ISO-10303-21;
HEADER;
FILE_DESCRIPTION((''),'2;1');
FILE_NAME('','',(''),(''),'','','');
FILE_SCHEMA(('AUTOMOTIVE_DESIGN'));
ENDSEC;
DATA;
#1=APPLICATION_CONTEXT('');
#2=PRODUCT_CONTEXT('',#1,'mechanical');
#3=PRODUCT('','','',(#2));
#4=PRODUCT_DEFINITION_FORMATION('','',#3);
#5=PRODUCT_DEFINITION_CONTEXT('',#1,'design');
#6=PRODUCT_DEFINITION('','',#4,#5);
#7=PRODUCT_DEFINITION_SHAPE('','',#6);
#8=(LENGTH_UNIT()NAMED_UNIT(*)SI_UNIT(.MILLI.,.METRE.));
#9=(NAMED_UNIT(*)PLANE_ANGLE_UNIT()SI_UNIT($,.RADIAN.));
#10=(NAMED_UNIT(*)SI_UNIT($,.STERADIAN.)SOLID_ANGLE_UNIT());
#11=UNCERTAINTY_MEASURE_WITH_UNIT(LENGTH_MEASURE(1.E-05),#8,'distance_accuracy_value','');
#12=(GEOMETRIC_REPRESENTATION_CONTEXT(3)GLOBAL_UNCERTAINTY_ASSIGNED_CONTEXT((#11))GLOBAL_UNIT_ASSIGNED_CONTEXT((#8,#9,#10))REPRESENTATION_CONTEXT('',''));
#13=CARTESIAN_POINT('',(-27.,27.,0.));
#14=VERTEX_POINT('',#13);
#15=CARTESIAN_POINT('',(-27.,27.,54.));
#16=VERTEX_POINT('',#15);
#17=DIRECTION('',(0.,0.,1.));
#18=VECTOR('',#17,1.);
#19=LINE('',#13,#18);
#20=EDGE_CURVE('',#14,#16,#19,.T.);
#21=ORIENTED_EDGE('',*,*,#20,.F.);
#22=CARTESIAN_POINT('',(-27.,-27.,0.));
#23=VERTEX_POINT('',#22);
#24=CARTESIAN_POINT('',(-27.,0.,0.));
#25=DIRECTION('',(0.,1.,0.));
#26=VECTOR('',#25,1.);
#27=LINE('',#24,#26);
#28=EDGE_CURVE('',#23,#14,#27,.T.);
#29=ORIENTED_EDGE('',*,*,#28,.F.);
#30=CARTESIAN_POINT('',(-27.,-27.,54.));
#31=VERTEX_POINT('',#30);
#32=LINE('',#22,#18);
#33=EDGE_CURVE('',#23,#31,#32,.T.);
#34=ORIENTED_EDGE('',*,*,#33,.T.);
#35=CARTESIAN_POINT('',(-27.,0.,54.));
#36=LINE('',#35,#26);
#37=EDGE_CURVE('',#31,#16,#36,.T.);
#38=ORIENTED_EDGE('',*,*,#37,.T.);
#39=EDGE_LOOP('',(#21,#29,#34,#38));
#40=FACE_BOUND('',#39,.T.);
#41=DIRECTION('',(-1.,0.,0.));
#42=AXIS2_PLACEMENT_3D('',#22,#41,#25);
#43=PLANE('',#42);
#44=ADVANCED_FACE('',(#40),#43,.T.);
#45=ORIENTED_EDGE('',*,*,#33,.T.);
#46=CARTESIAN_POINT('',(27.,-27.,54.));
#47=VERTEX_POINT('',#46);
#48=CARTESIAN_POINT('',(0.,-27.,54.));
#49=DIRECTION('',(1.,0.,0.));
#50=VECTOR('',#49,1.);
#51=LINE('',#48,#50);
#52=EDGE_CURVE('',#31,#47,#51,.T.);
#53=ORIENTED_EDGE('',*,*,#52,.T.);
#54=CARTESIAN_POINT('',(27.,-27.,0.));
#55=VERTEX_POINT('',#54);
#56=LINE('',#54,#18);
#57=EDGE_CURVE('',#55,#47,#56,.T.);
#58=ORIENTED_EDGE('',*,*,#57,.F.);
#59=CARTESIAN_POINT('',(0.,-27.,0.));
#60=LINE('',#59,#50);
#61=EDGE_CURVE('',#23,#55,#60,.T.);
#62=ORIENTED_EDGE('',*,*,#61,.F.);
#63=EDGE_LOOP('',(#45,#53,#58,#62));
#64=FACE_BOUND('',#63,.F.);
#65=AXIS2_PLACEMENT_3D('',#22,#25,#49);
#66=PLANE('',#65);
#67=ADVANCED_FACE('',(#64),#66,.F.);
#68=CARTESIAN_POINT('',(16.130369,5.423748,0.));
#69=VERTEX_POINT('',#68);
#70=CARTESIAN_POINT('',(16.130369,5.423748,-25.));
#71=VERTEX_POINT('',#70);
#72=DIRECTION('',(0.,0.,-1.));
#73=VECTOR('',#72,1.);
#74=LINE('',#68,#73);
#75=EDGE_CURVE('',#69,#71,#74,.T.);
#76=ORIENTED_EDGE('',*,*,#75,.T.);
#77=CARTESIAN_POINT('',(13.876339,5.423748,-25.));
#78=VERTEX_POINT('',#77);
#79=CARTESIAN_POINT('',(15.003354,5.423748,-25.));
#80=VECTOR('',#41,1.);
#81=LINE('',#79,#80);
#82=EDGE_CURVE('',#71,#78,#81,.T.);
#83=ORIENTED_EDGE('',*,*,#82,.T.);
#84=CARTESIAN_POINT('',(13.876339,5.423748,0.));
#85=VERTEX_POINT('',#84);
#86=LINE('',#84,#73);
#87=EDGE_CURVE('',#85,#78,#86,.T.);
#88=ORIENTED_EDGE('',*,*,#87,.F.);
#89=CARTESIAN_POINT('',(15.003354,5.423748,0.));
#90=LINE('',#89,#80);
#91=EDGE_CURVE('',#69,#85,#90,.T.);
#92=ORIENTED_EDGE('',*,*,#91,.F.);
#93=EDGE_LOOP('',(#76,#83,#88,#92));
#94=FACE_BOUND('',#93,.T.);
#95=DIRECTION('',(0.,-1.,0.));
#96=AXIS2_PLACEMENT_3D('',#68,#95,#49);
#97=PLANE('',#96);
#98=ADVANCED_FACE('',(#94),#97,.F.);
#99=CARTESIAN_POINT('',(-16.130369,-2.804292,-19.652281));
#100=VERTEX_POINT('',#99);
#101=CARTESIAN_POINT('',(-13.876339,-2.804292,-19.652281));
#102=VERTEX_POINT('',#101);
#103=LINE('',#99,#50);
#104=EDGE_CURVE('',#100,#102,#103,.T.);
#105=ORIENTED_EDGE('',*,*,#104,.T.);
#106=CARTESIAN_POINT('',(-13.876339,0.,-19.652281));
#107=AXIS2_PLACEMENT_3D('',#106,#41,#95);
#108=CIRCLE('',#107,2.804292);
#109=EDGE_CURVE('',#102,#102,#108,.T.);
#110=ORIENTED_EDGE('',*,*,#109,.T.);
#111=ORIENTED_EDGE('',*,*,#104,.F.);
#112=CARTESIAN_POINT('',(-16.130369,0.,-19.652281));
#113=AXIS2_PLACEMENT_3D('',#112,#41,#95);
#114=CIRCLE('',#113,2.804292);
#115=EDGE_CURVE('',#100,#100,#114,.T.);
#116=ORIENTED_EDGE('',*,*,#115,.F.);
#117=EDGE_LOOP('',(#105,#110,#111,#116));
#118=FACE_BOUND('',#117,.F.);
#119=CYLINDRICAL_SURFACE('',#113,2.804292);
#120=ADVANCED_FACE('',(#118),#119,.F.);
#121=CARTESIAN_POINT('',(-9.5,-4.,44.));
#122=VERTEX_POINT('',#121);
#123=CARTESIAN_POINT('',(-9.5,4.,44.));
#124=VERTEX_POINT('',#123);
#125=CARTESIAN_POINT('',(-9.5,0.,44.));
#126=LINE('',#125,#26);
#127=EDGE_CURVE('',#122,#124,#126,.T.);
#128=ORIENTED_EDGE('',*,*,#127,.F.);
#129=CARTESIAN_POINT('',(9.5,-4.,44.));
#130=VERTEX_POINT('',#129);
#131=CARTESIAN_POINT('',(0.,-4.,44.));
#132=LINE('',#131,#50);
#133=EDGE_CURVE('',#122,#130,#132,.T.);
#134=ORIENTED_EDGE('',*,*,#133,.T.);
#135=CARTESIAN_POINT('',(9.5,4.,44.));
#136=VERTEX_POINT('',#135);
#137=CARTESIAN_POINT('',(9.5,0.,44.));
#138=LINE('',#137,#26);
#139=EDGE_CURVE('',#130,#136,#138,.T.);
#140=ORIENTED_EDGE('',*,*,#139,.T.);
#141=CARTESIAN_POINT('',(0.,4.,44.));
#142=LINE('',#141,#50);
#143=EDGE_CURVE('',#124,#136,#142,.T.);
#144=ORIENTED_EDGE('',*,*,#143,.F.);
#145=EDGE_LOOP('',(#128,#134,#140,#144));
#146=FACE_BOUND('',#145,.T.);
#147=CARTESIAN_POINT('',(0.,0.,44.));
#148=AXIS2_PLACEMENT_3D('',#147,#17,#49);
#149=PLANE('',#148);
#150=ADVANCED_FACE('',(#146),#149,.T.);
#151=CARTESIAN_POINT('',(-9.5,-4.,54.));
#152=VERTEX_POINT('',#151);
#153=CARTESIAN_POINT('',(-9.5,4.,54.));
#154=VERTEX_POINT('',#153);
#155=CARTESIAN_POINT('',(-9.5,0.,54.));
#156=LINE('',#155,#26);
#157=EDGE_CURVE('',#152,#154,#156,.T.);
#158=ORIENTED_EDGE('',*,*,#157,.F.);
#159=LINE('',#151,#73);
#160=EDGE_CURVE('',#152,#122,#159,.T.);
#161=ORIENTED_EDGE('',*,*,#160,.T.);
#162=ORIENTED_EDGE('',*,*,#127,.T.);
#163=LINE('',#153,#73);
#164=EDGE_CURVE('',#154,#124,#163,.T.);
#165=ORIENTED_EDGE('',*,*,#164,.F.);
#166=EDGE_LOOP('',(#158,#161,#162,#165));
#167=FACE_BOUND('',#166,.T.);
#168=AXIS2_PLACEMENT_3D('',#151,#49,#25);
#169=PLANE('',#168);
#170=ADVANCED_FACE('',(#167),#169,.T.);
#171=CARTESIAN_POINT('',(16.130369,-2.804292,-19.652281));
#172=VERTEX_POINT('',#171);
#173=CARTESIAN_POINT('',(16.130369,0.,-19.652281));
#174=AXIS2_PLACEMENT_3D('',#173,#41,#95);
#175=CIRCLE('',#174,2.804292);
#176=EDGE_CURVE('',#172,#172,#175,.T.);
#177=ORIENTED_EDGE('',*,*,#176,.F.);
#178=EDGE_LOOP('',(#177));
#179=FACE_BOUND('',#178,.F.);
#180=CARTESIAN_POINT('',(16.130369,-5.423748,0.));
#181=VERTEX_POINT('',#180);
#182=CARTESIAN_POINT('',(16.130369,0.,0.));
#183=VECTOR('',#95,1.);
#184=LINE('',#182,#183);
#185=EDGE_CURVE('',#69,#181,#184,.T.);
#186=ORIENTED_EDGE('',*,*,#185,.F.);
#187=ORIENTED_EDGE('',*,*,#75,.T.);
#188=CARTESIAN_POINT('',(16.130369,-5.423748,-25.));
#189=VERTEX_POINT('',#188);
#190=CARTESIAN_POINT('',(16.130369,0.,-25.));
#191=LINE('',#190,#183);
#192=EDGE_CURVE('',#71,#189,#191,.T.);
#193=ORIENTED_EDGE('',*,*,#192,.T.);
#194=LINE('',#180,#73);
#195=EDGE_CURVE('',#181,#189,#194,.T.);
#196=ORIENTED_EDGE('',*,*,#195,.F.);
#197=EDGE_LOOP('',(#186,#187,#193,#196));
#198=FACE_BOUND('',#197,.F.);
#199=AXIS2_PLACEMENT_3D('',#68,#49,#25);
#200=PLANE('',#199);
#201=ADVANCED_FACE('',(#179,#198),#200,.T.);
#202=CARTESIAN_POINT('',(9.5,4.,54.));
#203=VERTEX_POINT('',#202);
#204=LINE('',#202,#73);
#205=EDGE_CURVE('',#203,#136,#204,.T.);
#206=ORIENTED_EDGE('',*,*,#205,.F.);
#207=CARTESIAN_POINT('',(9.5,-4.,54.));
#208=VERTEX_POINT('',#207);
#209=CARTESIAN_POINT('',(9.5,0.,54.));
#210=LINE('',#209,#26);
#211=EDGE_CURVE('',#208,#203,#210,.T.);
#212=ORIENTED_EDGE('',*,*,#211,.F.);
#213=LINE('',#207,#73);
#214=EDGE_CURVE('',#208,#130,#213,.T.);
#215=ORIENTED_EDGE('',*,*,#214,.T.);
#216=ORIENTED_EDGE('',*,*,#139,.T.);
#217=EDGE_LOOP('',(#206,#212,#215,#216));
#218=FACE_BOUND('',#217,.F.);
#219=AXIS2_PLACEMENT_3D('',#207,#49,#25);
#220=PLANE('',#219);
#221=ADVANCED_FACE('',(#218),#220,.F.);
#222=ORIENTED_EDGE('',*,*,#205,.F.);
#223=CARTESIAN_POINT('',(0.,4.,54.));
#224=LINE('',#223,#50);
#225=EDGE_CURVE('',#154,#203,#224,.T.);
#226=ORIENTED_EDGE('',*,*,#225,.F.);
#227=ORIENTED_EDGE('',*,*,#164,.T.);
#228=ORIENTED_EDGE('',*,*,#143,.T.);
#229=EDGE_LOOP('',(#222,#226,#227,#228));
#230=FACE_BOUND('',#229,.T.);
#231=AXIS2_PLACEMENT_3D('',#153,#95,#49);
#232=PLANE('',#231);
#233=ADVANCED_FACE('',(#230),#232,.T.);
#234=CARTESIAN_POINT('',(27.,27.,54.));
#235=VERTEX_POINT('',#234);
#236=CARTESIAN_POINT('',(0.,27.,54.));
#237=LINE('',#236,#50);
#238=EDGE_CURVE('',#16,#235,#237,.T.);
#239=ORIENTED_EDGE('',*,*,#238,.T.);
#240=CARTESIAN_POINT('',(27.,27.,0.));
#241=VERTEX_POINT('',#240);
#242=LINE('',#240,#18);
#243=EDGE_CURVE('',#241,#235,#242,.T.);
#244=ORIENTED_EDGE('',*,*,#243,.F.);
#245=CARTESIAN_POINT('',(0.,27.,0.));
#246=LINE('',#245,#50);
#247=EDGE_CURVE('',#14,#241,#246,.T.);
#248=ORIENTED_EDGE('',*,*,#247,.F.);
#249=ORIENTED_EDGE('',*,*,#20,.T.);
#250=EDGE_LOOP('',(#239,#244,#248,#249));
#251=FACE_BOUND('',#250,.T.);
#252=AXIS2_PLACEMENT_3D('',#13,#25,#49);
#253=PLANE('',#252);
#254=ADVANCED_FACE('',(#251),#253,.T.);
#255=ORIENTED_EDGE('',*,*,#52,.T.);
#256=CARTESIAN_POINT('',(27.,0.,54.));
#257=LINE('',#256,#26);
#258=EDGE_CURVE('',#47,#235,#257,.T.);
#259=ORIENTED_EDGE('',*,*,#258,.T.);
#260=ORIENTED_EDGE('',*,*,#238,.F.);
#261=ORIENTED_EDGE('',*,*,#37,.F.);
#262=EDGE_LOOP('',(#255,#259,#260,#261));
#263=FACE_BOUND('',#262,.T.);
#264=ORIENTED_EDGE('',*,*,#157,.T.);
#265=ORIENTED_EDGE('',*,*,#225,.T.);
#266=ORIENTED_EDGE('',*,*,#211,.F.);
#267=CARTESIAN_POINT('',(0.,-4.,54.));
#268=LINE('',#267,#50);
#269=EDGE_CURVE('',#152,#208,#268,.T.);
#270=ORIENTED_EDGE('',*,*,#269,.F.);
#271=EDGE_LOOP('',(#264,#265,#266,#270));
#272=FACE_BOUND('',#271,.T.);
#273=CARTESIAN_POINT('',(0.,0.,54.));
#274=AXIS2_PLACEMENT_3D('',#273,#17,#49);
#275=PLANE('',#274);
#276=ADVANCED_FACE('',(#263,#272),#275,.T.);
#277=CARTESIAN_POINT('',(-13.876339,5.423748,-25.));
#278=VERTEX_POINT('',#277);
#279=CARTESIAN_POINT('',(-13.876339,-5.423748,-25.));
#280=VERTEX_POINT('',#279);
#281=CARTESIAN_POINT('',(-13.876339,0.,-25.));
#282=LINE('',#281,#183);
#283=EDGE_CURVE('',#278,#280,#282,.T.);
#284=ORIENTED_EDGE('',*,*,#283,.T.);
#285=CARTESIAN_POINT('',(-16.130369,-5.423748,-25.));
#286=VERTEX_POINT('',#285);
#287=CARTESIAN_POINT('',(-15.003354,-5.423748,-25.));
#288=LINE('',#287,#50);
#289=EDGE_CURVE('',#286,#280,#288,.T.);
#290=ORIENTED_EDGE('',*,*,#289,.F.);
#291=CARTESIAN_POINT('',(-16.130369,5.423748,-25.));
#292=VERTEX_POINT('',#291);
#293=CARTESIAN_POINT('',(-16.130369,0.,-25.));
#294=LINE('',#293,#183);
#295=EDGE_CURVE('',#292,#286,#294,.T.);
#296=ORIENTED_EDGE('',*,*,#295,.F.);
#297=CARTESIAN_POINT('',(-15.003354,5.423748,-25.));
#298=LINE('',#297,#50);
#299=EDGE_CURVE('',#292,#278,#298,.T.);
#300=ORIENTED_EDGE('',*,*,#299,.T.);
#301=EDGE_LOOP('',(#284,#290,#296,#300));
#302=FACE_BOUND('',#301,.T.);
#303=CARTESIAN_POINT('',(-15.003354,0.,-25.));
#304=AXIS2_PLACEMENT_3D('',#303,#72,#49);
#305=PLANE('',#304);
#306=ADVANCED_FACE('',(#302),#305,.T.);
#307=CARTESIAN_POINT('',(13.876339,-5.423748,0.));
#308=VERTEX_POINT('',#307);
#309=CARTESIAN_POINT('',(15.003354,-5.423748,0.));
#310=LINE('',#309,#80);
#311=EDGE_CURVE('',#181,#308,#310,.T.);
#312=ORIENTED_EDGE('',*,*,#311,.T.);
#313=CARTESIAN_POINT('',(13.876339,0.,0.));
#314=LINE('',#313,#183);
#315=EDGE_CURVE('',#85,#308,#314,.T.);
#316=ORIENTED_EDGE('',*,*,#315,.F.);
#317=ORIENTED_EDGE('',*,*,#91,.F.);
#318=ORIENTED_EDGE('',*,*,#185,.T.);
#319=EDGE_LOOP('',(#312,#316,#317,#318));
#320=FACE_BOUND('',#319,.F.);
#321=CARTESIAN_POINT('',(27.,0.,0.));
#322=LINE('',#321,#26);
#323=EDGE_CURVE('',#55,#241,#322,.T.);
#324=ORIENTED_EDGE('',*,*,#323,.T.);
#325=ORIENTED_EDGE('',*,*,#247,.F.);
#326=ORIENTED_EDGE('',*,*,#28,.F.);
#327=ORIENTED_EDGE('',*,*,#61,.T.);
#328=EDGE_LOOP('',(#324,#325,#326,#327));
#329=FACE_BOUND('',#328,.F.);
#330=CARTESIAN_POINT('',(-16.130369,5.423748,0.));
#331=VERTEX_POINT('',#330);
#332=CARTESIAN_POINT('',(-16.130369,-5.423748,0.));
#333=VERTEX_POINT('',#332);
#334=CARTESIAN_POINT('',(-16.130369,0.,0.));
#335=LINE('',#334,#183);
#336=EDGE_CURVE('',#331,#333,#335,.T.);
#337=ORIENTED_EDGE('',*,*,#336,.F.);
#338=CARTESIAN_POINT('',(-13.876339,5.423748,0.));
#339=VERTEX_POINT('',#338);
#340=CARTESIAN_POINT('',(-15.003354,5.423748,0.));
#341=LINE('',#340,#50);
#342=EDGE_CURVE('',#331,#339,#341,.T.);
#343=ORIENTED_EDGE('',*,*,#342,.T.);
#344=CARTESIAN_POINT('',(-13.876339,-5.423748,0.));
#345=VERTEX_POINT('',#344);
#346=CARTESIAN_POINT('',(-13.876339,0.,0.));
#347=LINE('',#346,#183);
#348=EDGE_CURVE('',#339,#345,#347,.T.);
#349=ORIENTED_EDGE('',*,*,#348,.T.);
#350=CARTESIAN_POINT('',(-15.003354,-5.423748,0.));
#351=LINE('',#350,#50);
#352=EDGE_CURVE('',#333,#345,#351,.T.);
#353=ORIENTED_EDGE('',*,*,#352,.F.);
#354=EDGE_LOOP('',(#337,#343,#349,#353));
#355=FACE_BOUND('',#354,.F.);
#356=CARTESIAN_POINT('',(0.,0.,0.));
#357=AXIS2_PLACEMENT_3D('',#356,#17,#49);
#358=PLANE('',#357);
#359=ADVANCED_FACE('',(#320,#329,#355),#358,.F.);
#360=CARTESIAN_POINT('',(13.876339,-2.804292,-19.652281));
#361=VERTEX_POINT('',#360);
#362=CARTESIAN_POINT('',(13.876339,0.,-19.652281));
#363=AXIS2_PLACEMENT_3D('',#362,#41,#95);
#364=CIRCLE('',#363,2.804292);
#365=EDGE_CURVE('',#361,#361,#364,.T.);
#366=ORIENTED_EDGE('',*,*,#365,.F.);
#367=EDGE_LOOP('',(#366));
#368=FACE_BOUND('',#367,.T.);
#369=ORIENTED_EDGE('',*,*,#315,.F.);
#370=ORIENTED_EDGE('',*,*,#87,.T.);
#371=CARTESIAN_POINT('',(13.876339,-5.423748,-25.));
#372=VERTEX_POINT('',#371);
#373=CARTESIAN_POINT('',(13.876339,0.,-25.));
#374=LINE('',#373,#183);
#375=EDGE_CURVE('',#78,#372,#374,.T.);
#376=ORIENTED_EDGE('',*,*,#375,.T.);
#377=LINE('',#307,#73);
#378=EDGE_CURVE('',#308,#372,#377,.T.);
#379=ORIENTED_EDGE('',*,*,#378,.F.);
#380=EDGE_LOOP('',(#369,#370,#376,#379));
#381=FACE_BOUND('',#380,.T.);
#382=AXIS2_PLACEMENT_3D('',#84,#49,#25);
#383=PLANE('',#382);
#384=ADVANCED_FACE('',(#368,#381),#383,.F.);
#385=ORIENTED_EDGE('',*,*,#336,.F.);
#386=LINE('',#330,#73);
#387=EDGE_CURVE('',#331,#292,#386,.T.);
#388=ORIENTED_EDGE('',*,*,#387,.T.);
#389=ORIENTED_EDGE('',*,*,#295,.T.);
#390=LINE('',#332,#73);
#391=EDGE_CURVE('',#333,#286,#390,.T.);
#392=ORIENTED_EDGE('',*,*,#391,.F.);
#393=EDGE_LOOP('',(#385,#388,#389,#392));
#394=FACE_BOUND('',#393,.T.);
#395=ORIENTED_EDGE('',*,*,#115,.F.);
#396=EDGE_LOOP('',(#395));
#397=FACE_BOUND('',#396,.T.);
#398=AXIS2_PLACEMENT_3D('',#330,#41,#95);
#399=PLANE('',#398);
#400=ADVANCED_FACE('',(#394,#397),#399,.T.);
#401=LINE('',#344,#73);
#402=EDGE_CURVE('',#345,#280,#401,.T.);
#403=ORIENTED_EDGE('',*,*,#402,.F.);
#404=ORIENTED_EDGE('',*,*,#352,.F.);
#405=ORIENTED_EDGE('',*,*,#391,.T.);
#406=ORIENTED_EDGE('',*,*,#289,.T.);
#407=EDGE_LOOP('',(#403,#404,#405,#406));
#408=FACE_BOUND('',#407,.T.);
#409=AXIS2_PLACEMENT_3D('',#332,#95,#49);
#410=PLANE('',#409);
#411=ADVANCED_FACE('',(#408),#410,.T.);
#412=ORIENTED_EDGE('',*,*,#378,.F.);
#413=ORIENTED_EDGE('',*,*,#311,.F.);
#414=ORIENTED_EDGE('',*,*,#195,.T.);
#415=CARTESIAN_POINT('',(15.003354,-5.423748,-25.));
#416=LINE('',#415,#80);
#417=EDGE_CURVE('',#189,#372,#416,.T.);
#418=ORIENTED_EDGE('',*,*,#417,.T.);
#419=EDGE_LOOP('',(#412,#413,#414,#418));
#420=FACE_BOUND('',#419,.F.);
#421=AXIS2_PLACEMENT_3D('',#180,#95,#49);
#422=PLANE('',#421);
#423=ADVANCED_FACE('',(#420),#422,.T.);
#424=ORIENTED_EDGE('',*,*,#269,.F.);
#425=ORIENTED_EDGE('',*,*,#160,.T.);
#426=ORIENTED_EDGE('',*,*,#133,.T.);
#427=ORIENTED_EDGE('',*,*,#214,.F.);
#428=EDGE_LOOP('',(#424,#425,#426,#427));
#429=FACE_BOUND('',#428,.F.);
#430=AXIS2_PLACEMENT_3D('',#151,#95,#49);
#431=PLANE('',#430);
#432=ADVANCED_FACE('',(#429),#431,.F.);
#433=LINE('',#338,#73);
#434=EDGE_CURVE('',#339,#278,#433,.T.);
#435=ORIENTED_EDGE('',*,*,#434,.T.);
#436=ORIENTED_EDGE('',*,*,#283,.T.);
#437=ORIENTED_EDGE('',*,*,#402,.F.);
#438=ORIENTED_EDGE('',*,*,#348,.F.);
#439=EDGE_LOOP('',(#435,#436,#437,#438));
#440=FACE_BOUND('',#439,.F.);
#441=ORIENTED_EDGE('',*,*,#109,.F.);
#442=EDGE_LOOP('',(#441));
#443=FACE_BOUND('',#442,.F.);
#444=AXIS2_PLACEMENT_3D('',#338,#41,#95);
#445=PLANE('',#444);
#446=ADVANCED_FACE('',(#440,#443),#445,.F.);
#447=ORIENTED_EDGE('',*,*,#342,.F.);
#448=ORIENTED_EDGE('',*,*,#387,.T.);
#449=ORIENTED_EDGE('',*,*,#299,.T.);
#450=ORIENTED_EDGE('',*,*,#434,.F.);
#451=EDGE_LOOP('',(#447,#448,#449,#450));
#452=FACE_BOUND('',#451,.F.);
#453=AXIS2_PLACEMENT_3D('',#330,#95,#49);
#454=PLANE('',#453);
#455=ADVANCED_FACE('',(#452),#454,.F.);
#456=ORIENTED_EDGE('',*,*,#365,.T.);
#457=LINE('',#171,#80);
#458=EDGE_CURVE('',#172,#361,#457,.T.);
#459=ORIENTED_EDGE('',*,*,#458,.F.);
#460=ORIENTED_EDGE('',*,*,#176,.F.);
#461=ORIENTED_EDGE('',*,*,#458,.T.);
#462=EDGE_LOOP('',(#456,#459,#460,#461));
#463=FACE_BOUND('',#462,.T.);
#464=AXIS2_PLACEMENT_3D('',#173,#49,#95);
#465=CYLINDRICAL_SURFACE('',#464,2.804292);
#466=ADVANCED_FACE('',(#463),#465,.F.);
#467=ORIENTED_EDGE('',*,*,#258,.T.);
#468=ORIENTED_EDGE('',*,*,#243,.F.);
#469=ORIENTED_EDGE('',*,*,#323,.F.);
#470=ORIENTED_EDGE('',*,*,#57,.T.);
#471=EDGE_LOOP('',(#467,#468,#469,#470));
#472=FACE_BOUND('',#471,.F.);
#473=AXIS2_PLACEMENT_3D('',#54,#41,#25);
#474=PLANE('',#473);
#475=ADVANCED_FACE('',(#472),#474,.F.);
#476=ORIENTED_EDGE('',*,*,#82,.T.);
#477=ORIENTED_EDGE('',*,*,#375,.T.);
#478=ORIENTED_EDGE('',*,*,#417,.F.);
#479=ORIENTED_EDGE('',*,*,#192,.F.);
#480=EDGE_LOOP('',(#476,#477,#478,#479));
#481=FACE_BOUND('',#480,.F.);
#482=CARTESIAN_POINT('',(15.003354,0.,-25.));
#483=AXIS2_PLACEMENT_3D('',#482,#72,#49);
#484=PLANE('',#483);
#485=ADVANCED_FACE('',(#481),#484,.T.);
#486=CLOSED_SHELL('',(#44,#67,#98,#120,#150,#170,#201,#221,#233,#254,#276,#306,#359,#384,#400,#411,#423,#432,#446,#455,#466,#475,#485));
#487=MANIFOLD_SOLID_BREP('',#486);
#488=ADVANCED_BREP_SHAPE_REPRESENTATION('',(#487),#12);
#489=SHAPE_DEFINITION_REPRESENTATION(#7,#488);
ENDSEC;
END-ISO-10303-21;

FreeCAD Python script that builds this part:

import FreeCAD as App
import Part
import Sketcher


def add_polygon(sketch, points):
    """Adds a closed chain of lines whose ends are joined by coincident constraints."""
    first, n = sketch.GeometryCount, len(points)
    for a, b in zip(points, points[1:] + points[:1]):
        sketch.addGeometry(Part.LineSegment(App.Vector(*a, 0), App.Vector(*b, 0)), False)
    for i in range(n):
        sketch.addConstraint(Sketcher.Constraint("Coincident", first + i, 2, first + (i + 1) % n, 1))

doc = App.newDocument("Part")
body = doc.addObject("PartDesign::Body", "Body")

# Sketch on XY plane
sketch1 = body.newObject("Sketcher::SketchObject", "Sketch")
sketch1.AttachmentSupport = (doc.getObject("XY_Plane"), [""])
sketch1.MapMode = "FlatFace"
add_polygon(sketch1, [(-27, 27), (-27, -27), (27, -27), (27, 27)])  # lines 0-3
sketch1.addConstraint([
    Sketcher.Constraint("Vertical", 0),
    Sketcher.Constraint("Horizontal", 1),
    Sketcher.Constraint("Vertical", 2),
    Sketcher.Constraint("Horizontal", 3),
    Sketcher.Constraint("Symmetric", 0, 2, 2, 2, -1, 1),
    Sketcher.Constraint("Equal", 3, 0),
    Sketcher.Constraint("DistanceX", 1, 1, 1, 2, 54.0),
])
pad1 = body.newObject("PartDesign::Pad", "Pad")
pad1.Profile = sketch1
pad1.Length = 54

# Sketch on XY plane
sketch2 = body.newObject("Sketcher::SketchObject", "Sketch001")
sketch2.AttachmentSupport = (doc.getObject("XY_Plane"), [""])
sketch2.MapMode = "FlatFace"
sketch2.AttachmentOffset = App.Placement(App.Vector(0, 0, 54), App.Rotation())
add_polygon(sketch2, [(-10, 4), (-10, -4), (10, -4), (10, 4)])  # lines 0-3
sketch2.addConstraint([
    Sketcher.Constraint("Vertical", 0),
    Sketcher.Constraint("Horizontal", 1),
    Sketcher.Constraint("Vertical", 2),
    Sketcher.Constraint("Horizontal", 3),
    Sketcher.Constraint("Symmetric", 0, 2, 2, 2, -1, 1),
    Sketcher.Constraint("DistanceX", 1, 1, 1, 2, 19.0),
    Sketcher.Constraint("DistanceY", 0, 2, 0, 1, 8.0),
])
pocket1 = body.newObject("PartDesign::Pocket", "Pocket")
pocket1.Profile = sketch2
pocket1.Length = 10

# Sketch on XY plane
sketch3 = body.newObject("Sketcher::SketchObject", "Sketch002")
sketch3.AttachmentSupport = (doc.getObject("XY_Plane"), [""])
sketch3.MapMode = "FlatFace"
add_polygon(sketch3, [(-16.1, -5.4), (-16.1, 5.4), (-13.9, 5.4), (-13.9, -5.4)])  # lines 0-3
sketch3.addConstraint([
    Sketcher.Constraint("Vertical", 0),
    Sketcher.Constraint("Horizontal", 1),
    Sketcher.Constraint("Vertical", 2),
    Sketcher.Constraint("Horizontal", 3),
    Sketcher.Constraint("DistanceX", 1, 1, 1, 2, 2.25403),
    Sketcher.Constraint("DistanceY", 0, 1, 0, 2, 10.847496),
    Sketcher.Constraint("DistanceX", 0, 2, -1, 1, 16.130369),
    Sketcher.Constraint("DistanceY", -1, 1, 0, 2, 5.423748),
])
pad2 = body.newObject("PartDesign::Pad", "Pad001")
pad2.Profile = sketch3
pad2.Length = 25
pad2.Reversed = True

# Sketch on YZ plane
sketch4 = body.newObject("Sketcher::SketchObject", "Sketch003")
sketch4.AttachmentSupport = (doc.getObject("YZ_Plane"), [""])
sketch4.MapMode = "FlatFace"
sketch4.AttachmentOffset = App.Placement(App.Vector(0, 0, -16.130369), App.Rotation())
sketch4.addGeometry(Part.Circle(App.Vector(0, -19.7, 0), App.Vector(0, 0, 1), 2.8), False)
sketch4.addConstraint([
    Sketcher.Constraint("PointOnObject", 0, 3, -2),
    Sketcher.Constraint("Diameter", 0, 5.608584),
    Sketcher.Constraint("DistanceY", 0, 3, -1, 1, 19.652281),
])
pocket2 = body.newObject("PartDesign::Pocket", "Pocket001")
pocket2.Profile = sketch4
pocket2.Length = 3
pocket2.Reversed = True
body2 = doc.addObject("PartDesign::Body", "Body001")
doc.recompute()

body2.BaseFeature = body
doc.recompute()

mirroring = doc.addObject("Part::Mirroring", "Mirroring")
mirroring.Source = body
mirroring.Base = App.Vector(0, 0, 0)
mirroring.Normal = App.Vector(1, 0, 0)
body3 = doc.addObject("PartDesign::Body", "Body002")
body3.BaseFeature = mirroring
boolean = body2.newObject("PartDesign::Boolean", "Boolean")
boolean.Type = "Fuse"
boolean.addObjects([body3])
doc.recompute()
mirroring.Visibility = False

doc.recompute()
